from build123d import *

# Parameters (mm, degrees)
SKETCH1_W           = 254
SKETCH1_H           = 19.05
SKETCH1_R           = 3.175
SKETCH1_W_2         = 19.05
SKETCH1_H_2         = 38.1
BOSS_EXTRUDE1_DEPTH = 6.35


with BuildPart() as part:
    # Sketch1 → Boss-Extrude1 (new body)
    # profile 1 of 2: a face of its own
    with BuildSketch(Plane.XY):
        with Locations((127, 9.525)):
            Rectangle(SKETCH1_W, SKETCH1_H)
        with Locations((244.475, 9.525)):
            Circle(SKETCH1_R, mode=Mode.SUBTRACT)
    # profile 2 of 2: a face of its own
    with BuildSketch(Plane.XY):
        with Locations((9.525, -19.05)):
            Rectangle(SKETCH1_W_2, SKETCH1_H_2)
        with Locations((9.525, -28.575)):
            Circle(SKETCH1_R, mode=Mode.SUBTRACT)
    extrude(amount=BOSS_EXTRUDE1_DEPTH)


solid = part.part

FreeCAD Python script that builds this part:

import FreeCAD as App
import Part
import Sketcher
from FreeCAD import Vector
Q = App.Units.Quantity


def add_polygon(sketch, points):
    """Adds a closed chain of lines whose ends are joined by coincident constraints."""
    first, n = sketch.GeometryCount, len(points)
    for a, b in zip(points, points[1:] + points[:1]):
        sketch.addGeometry(Part.LineSegment(App.Vector(*a, 0), App.Vector(*b, 0)), False)
    for i in range(n):
        sketch.addConstraint(Sketcher.Constraint("Coincident", first + i, 2, first + (i + 1) % n, 1))

doc = App.newDocument("Part")
body = doc.addObject("PartDesign::Body", "Body")

# Sketch on XY plane
sketch1 = body.newObject("Sketcher::SketchObject", "Sketch")
sketch1.AttachmentSupport = (doc.getObject("XY_Plane"), [""])
sketch1.MapMode = "FlatFace"
add_polygon(sketch1, [(0, 19.1), (0, -38.1), (19.1, -38.1), (19.1, 0), (254, 0), (254, 19.1)])  # lines 0-5
sketch1.addGeometry(Part.Circle(Vector(244.5, 9.5, 0), Vector(0, 0, 1), 3.2), False)  # 6
sketch1.addGeometry(Part.Circle(Vector(9.5, -28.6, 0), Vector(0, 0, 1), 3.2), False)  # 7
sketch1.addConstraint([
    Sketcher.Constraint("Vertical", 0),
    Sketcher.Constraint("Horizontal", 1),
    Sketcher.Constraint("Vertical", 2),
    Sketcher.Constraint("Horizontal", 3),
    Sketcher.Constraint("Vertical", 4),
    Sketcher.Constraint("Horizontal", 5),
    Sketcher.Constraint("Equal", 6, 7),
    Sketcher.Constraint("PointOnObject", 0, 2, -2),
    Sketcher.Constraint("PointOnObject", 2, 2, -1),
    Sketcher.Constraint("Equal", 1, 4),
    Sketcher.Constraint("Diameter", 6, Q("0.25 in")),
    Sketcher.Constraint("DistanceX", 5, 2, 5, 1, Q("10 in")),
    Sketcher.Constraint("DistanceY", 2, 1, 2, 2, Q("1.5 in")),
    Sketcher.Constraint("DistanceX", 1, 1, 1, 2, Q("0.75 in")),
    Sketcher.Constraint("DistanceY", 7, 3, 6, 3, Q("1.5 in")),
    Sketcher.Constraint("DistanceX", 7, 3, 6, 3, Q("9.25 in")),
    Sketcher.Constraint("DistanceX", -1, 1, 6, 3, Q("9.625 in")),
    Sketcher.Constraint("DistanceY", -1, 1, 6, 3, Q("0.375 in")),
])
pad1 = body.newObject("PartDesign::Pad", "Pad")
pad1.Profile = sketch1
pad1.Length = Q("0.25 in")

doc.recompute()
